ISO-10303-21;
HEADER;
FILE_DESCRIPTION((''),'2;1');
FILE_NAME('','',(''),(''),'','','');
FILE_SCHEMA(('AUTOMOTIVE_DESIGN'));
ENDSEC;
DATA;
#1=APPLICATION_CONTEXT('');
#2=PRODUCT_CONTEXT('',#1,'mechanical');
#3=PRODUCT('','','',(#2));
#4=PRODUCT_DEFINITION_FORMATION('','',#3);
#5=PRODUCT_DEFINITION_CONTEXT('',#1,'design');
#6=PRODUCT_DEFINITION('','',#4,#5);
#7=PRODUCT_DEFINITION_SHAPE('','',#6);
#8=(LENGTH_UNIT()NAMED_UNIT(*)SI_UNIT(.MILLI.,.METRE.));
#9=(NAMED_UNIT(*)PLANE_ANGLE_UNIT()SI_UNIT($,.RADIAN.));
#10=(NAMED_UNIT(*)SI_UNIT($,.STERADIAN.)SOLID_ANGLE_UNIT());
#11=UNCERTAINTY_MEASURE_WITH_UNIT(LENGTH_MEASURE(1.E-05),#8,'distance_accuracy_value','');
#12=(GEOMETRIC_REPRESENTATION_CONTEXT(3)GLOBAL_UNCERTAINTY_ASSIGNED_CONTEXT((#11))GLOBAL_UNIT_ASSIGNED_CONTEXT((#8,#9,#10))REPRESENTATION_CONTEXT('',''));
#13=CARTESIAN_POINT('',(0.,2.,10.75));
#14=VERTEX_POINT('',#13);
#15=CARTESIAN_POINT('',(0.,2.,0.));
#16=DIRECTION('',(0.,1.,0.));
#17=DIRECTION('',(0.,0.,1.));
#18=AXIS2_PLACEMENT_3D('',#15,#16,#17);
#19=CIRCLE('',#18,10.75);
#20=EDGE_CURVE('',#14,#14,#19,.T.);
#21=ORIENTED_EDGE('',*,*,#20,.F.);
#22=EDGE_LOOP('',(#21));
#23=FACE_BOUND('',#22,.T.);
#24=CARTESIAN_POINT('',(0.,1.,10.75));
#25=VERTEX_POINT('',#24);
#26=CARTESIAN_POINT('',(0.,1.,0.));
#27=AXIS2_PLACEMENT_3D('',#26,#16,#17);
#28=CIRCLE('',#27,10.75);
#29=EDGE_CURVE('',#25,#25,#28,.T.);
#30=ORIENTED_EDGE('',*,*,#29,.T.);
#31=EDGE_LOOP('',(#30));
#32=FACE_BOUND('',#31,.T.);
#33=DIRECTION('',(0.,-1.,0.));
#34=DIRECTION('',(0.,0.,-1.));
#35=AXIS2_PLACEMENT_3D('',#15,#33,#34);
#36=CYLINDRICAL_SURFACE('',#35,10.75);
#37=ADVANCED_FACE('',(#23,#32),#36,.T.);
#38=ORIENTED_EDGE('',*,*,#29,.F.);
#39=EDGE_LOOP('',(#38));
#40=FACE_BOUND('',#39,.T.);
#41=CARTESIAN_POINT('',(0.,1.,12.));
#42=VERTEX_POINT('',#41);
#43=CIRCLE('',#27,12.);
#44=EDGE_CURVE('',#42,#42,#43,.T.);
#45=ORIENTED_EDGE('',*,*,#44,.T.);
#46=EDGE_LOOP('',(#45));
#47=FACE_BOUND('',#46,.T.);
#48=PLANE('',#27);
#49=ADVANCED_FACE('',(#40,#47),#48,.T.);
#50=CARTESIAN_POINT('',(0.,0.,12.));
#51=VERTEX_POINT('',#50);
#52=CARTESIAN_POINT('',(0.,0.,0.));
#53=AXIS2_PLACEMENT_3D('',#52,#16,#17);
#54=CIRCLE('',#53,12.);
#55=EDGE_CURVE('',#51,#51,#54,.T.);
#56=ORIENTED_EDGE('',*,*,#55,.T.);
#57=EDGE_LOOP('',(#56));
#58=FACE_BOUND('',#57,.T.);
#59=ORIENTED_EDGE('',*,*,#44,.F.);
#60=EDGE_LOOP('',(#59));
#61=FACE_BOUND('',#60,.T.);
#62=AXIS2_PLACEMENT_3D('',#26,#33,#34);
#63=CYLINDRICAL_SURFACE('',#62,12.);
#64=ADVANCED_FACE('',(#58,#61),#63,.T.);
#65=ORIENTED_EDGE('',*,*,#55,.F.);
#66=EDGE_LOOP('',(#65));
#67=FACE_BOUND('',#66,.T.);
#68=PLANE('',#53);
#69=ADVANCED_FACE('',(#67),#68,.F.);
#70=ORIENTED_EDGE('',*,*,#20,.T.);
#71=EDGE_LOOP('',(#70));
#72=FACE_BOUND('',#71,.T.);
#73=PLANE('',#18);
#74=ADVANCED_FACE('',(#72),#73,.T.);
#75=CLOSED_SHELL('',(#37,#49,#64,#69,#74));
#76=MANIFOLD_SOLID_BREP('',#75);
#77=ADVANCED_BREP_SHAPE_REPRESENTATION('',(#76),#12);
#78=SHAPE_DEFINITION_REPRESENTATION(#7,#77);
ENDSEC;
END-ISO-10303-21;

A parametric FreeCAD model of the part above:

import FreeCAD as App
import Part
import Sketcher
Q = App.Units.Quantity

doc = App.newDocument("Part")
body = doc.addObject("PartDesign::Body", "Body")

sketch1 = body.newObject("Sketcher::SketchObject", "Sketch")
sketch1.AttachmentSupport = (doc.getObject("XZ_Plane"), [""])
sketch1.MapMode = "FlatFace"
sketch1.addGeometry([
    Part.Circle(App.Vector(0, 0, 0), App.Vector(0, 0, 1), 12),
    Part.Circle(App.Vector(0, 0, 0), App.Vector(0, 0, 1), 10.75),
], False)
sketch1.addConstraint([
    Sketcher.Constraint("Coincident", 0, 3, -1, 1),
    Sketcher.Constraint("Coincident", 1, 3, -1, 1),
    Sketcher.Constraint("Diameter", 0, Q("24 mm")),
    Sketcher.Constraint("Diameter", 1, Q("21.5 mm")),
])
pad1 = body.newObject("PartDesign::Pad", "Pad")
pad1.Profile = sketch1
pad1.Length = 1
pad1.Reversed = True

sketch2 = body.newObject("Sketcher::SketchObject", "Sketch001")
sketch2.AttachmentSupport = (doc.getObject("XZ_Plane"), [""])
sketch2.MapMode = "FlatFace"
sketch2.addGeometry(Part.Circle(App.Vector(0, 0, 0), App.Vector(0, 0, 1), 10.75), False)
sketch2.addConstraint([
    Sketcher.Constraint("Coincident", 0, 3, -1, 1),
    Sketcher.Constraint("Diameter", 0, Q("21.5 mm")),
])
pad2 = body.newObject("PartDesign::Pad", "Pad001")
pad2.Profile = sketch2
pad2.Length = 2
pad2.Reversed = True

doc.recompute()
